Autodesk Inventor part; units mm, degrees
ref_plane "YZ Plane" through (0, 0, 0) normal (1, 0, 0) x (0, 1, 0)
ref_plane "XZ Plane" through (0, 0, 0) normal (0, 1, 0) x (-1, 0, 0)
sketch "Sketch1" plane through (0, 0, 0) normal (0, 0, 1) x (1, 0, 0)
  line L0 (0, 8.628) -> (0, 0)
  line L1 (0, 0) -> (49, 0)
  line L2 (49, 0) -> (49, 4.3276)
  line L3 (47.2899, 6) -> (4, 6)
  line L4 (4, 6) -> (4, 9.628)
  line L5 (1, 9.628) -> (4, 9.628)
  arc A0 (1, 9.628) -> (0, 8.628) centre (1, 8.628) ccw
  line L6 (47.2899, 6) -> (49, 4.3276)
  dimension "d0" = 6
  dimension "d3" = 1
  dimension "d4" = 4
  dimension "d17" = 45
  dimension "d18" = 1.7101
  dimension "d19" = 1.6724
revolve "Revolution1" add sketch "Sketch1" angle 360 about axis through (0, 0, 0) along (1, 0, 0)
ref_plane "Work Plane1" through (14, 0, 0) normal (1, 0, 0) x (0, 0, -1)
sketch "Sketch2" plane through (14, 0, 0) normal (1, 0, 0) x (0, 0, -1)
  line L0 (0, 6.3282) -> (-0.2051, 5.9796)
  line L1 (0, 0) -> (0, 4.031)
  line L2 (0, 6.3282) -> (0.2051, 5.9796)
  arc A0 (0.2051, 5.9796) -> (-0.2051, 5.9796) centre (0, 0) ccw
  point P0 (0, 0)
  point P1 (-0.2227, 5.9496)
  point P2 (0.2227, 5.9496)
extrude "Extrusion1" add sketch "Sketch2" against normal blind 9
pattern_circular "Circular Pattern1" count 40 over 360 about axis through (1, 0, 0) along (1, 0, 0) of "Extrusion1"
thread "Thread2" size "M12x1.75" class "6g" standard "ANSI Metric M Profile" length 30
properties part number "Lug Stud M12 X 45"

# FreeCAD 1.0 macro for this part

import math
import FreeCAD as App
import Part
import Sketcher
Q = App.Units.Quantity

doc = App.newDocument("Part")
body = doc.addObject("PartDesign::Body", "Body")

# Sketch on XY plane
sketch1 = doc.addObject("Sketcher::SketchObject", "Sketch")
body.addObject(sketch1)
sketch1.AttachmentSupport = (doc.XY_Plane, [""])
sketch1.MapMode = "FlatFace"
sketch1.addGeometry(Part.ArcOfCircle(Part.Circle(App.Vector(1, 8.628, 0), App.Vector(0, 0, 1), 1), math.radians(90), math.radians(180)), False)
sketch1.addGeometry(Part.LineSegment(App.Vector(0, 8.628, 0), App.Vector(0, 0, 0)), False)
sketch1.addGeometry(Part.LineSegment(App.Vector(0, 0, 0), App.Vector(49, 0, 0)), False)
sketch1.addGeometry(Part.LineSegment(App.Vector(49, 0, 0), App.Vector(49, 4.3276, 0)), False)
sketch1.addGeometry(Part.LineSegment(App.Vector(49, 4.3276, 0), App.Vector(47.2899, 6, 0)), False)
sketch1.addGeometry(Part.LineSegment(App.Vector(47.2899, 6, 0), App.Vector(4, 6, 0)), False)
sketch1.addGeometry(Part.LineSegment(App.Vector(4, 6, 0), App.Vector(4, 9.628, 0)), False)
sketch1.addGeometry(Part.LineSegment(App.Vector(4, 9.628, 0), App.Vector(1, 9.628, 0)), False)
sketch1.addConstraint(Sketcher.Constraint("Tangent", 0, 2, 1, 1))
sketch1.addConstraint(Sketcher.Constraint("Coincident", 1, 2, 2, 1))
sketch1.addConstraint(Sketcher.Constraint("Coincident", 2, 2, 3, 1))
sketch1.addConstraint(Sketcher.Constraint("Coincident", 3, 2, 4, 1))
sketch1.addConstraint(Sketcher.Constraint("Coincident", 4, 2, 5, 1))
sketch1.addConstraint(Sketcher.Constraint("Coincident", 5, 2, 6, 1))
sketch1.addConstraint(Sketcher.Constraint("Coincident", 6, 2, 7, 1))
sketch1.addConstraint(Sketcher.Constraint("Tangent", 7, 2, 0, 1))
sketch1.addConstraint(Sketcher.Constraint("Vertical", 1))
sketch1.addConstraint(Sketcher.Constraint("Horizontal", 2))
sketch1.addConstraint(Sketcher.Constraint("Vertical", 3))
sketch1.addConstraint(Sketcher.Constraint("Horizontal", 5))
sketch1.addConstraint(Sketcher.Constraint("Vertical", 6))
sketch1.addConstraint(Sketcher.Constraint("Horizontal", 7))
sketch1.addConstraint(Sketcher.Constraint("Coincident", 1, 2, -1, 1))
sketch1.addConstraint(Sketcher.Constraint("Radius", 0, 1.0))
sketch1.addConstraint(Sketcher.Constraint("DistanceY", -1, 1, 4, 2, 6.0))
sketch1.addConstraint(Sketcher.Constraint("DistanceX", -1, 1, 5, 2, 4.0))
sketch1.addConstraint(Sketcher.Constraint("DistanceX", 5, 2, 3, 2, 45.0))
sketch1.addConstraint(Sketcher.Constraint("DistanceX", 4, 2, 3, 2, 1.71))
sketch1.addConstraint(Sketcher.Constraint("DistanceY", 3, 2, 4, 2, 1.6724))
sketch1.addConstraint(Sketcher.Constraint("DistanceY", 1, 2, 1, 1, 8.628))
revolution = doc.addObject("PartDesign::Revolution", "Revolution")
body.addObject(revolution)
revolution.Profile = sketch1
revolution.ReferenceAxis = (sketch1, ["H_Axis"])
revolution.Angle = 360

# Sketch on YZ plane
sketch2 = doc.addObject("Sketcher::SketchObject", "Sketch001")
body.addObject(sketch2)
sketch2.AttachmentSupport = (doc.YZ_Plane, [""])
sketch2.MapMode = "FlatFace"
sketch2.AttachmentOffset = App.Placement(App.Vector(0, 0, 14), App.Rotation())
sketch2.addGeometry(Part.LineSegment(App.Vector(5.9796, -0.2051, 0), App.Vector(6.3282, 0, 0)), False)
sketch2.addGeometry(Part.LineSegment(App.Vector(6.3282, 0, 0), App.Vector(5.9796, 0.2051, 0)), False)
sketch2.addGeometry(Part.ArcOfCircle(Part.Circle(App.Vector(0, 0, 0), App.Vector(0, 0, 1), 5.983116), math.radians(-1.964472), math.radians(1.964472)), False)
sketch2.addConstraint(Sketcher.Constraint("Coincident", 0, 2, 1, 1))
sketch2.addConstraint(Sketcher.Constraint("Coincident", 1, 2, 2, 2))
sketch2.addConstraint(Sketcher.Constraint("Coincident", 2, 1, 0, 1))
sketch2.addConstraint(Sketcher.Constraint("Coincident", 2, 3, -1, 1))
sketch2.addConstraint(Sketcher.Constraint("PointOnObject", 0, 2, -1))
sketch2.addConstraint(Sketcher.Constraint("Vertical", 1, 2, 2, 1))
sketch2.addConstraint(Sketcher.Constraint("Radius", 2, 5.983))
sketch2.addConstraint(Sketcher.Constraint("Angle", 0, Q("30.4706 deg")))
sketch2.addConstraint(Sketcher.Constraint("DistanceY", -1, 1, 1, 2, 0.205))
pad1 = doc.addObject("PartDesign::Pad", "Pad")
body.addObject(pad1)
pad1.Profile = sketch2
pad1.Length = 9
pad1.Reversed = True
doc.recompute()

polarpattern = doc.addObject("PartDesign::PolarPattern", "PolarPattern")
body.addObject(polarpattern)
polarpattern.Originals = [pad1]
polarpattern.Axis = (doc.X_Axis, [""])
polarpattern.Angle = 360
polarpattern.Occurrences = 40
body.Tip = polarpattern

doc.recompute()
